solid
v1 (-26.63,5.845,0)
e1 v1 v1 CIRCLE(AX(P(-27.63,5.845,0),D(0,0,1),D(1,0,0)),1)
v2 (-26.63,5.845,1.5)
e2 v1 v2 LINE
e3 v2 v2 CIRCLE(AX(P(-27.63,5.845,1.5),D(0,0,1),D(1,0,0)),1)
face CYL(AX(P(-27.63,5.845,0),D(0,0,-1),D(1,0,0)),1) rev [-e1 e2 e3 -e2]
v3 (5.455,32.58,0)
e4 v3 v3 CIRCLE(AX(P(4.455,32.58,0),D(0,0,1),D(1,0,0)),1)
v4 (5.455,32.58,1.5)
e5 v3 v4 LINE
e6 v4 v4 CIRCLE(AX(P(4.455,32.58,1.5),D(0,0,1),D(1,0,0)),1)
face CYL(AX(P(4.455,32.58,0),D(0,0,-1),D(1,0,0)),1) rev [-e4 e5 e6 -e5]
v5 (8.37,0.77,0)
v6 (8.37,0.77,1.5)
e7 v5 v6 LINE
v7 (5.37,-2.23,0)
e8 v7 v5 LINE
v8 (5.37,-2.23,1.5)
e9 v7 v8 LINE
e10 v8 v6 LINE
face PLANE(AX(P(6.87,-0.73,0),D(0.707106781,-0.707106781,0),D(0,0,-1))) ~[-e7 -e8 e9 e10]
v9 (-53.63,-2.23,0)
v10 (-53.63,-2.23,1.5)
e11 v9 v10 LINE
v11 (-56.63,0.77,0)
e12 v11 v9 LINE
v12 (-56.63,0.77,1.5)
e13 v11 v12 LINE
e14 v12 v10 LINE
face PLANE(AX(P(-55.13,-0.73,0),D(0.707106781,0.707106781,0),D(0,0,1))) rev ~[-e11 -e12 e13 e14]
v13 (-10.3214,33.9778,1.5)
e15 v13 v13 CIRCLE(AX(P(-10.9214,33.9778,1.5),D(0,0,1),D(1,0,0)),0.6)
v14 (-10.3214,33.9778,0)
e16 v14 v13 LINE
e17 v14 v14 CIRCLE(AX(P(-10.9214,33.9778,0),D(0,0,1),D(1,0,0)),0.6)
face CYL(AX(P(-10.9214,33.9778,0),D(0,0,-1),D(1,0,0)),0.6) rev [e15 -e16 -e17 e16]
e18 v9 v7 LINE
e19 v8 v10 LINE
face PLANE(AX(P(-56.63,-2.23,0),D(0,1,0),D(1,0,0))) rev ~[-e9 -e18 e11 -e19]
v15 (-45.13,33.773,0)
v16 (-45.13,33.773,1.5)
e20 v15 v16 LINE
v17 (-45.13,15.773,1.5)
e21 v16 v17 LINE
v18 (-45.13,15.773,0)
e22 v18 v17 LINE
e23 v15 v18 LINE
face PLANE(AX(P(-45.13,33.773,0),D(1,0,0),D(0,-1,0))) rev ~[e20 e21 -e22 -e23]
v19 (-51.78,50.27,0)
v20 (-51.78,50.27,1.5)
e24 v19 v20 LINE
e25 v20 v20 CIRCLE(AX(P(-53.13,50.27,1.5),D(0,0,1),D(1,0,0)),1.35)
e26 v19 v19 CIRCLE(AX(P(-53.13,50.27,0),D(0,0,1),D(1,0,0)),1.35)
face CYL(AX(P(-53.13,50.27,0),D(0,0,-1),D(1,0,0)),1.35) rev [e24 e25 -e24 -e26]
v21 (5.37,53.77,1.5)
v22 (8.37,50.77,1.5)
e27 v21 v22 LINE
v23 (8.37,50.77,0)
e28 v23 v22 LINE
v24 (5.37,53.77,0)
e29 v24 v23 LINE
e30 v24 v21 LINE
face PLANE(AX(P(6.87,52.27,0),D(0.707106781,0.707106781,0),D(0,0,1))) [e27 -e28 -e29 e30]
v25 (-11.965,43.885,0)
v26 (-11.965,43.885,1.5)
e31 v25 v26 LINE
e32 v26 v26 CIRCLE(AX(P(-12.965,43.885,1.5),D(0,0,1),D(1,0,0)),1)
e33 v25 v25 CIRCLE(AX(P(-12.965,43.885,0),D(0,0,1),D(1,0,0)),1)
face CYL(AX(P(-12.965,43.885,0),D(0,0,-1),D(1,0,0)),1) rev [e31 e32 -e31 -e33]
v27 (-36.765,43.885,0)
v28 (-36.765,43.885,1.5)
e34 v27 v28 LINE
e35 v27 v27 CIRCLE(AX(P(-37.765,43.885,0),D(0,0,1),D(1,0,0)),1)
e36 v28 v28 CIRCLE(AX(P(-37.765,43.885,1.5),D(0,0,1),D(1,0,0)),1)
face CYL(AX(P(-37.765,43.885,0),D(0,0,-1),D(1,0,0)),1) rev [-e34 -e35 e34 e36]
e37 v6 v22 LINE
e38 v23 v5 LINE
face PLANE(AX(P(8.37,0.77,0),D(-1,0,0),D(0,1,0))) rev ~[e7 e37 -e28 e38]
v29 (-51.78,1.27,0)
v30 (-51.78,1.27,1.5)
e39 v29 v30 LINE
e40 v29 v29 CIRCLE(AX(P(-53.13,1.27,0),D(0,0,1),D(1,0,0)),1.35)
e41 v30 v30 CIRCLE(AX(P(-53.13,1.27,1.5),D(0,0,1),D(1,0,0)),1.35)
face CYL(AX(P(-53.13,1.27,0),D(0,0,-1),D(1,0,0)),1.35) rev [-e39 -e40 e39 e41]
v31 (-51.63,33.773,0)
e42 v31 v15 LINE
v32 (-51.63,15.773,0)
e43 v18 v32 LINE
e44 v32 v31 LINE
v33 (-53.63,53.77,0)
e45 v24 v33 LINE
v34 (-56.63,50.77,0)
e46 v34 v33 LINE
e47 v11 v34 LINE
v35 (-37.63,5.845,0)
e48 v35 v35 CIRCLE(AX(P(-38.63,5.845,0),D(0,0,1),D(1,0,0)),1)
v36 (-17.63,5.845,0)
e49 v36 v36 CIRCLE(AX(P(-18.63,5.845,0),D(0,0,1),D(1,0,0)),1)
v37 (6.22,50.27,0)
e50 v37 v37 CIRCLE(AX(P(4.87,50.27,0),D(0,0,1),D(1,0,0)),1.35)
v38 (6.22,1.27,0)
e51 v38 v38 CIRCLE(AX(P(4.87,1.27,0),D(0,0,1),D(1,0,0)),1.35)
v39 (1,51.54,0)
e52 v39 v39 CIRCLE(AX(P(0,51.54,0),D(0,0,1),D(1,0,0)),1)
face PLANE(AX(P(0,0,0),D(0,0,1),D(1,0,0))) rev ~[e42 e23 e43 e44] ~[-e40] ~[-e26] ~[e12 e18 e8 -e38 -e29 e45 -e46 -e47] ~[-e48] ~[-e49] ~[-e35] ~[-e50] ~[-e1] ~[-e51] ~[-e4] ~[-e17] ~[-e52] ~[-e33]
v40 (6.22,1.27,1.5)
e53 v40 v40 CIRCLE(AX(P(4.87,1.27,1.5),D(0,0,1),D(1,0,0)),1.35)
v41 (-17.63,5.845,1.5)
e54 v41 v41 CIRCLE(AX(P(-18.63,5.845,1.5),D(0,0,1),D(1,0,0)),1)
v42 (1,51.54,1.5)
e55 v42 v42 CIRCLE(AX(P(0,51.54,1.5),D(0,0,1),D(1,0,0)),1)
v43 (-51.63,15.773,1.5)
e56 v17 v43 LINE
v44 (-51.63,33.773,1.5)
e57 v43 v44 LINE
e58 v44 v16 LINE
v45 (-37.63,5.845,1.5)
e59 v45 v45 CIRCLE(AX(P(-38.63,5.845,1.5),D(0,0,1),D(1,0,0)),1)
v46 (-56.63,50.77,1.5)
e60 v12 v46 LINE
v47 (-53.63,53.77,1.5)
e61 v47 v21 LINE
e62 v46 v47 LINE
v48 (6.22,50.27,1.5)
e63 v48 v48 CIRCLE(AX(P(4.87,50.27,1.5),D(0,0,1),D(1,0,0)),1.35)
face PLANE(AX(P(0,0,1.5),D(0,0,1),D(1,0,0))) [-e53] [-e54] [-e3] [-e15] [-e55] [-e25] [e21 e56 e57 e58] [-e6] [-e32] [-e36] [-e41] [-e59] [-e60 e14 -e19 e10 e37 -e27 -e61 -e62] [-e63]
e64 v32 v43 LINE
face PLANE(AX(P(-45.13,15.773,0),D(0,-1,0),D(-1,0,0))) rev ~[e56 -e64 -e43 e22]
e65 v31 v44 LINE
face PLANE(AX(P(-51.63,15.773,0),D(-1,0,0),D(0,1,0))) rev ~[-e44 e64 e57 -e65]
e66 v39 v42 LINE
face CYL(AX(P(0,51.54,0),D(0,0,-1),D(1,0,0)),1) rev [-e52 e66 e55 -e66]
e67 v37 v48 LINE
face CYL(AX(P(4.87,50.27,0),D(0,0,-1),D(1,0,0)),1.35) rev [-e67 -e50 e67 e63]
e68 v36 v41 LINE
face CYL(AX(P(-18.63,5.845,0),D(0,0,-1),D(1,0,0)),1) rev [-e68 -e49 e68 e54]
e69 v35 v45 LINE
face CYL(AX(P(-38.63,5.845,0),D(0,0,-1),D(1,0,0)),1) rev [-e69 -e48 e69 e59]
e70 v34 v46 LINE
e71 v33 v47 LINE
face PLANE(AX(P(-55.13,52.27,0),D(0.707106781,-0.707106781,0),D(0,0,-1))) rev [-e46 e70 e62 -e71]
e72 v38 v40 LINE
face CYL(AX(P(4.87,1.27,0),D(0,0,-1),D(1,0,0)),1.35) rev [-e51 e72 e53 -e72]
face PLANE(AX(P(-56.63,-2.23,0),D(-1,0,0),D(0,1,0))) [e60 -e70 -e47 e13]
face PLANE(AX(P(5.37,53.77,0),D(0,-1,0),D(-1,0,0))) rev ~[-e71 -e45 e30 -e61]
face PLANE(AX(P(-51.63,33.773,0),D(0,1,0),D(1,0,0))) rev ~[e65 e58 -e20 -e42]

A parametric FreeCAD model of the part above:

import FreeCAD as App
import Part
import Sketcher
Q = App.Units.Quantity


def edges_at(feature, points):
    """Names of the edges that pass closest to the given points."""
    edges = feature.Shape.Edges
    near = lambda p: min(range(len(edges)), key=lambda i: edges[i].distToShape(Part.Vertex(*p))[0])
    return sorted({f"Edge{near(p) + 1}" for p in points})


def add_polygon(sketch, points):
    """Adds a closed chain of lines whose ends are joined by coincident constraints."""
    first, n = sketch.GeometryCount, len(points)
    for a, b in zip(points, points[1:] + points[:1]):
        sketch.addGeometry(Part.LineSegment(App.Vector(*a, 0), App.Vector(*b, 0)), False)
    for i in range(n):
        sketch.addConstraint(Sketcher.Constraint("Coincident", first + i, 2, first + (i + 1) % n, 1))

doc = App.newDocument("Part")
body = doc.addObject("PartDesign::Body", "Body")

sketch1 = body.newObject("Sketcher::SketchObject", "Sketch")
sketch1.AttachmentSupport = (doc.getObject("XY_Plane"), [""])
sketch1.MapMode = "FlatFace"
add_polygon(sketch1, [(-56.6, 53.8), (-56.6, -2.2), (8.4, -2.2), (8.4, 53.8)])
sketch1.addGeometry(Part.Circle(App.Vector(-53.1, 1.3, 0), App.Vector(0, 0, 1), 1.4), False)
sketch1.addGeometry(Part.Circle(App.Vector(-38.6, 5.8, 0), App.Vector(0, 0, 1), 1), False)
sketch1.addGeometry(Part.Circle(App.Vector(4.9, 1.3, 0), App.Vector(0, 0, 1), 1.4), False)
sketch1.addGeometry(Part.Circle(App.Vector(-27.6, 5.8, 0), App.Vector(0, 0, 1), 1), False)
sketch1.addGeometry(Part.Circle(App.Vector(-18.6, 5.8, 0), App.Vector(0, 0, 1), 1), False)
add_polygon(sketch1, [(-51.6, 15.8), (-51.6, 33.8), (-45.1, 33.8), (-45.1, 15.8)])
sketch1.addGeometry(Part.Circle(App.Vector(-53.1, 50.3, 0), App.Vector(0, 0, 1), 1.4), False)
sketch1.addGeometry(Part.Circle(App.Vector(-37.8, 43.9, 0), App.Vector(0, 0, 1), 1), False)
sketch1.addGeometry(Part.Circle(App.Vector(4.5, 32.6, 0), App.Vector(0, 0, 1), 1), False)
sketch1.addGeometry(Part.Circle(App.Vector(-10.9, 34, 0), App.Vector(0, 0, 1), 0.6), False)
sketch1.addGeometry(Part.Circle(App.Vector(-13, 43.9, 0), App.Vector(0, 0, 1), 1), False)
sketch1.addGeometry(Part.Circle(App.Vector(0, 51.5, 0), App.Vector(0, 0, 1), 1), False)
sketch1.addGeometry(Part.Circle(App.Vector(4.9, 50.3, 0), App.Vector(0, 0, 1), 1.4), False)
sketch1.addConstraint(Sketcher.Constraint("Vertical", 0))
sketch1.addConstraint(Sketcher.Constraint("Horizontal", 1))
sketch1.addConstraint(Sketcher.Constraint("Vertical", 2))
sketch1.addConstraint(Sketcher.Constraint("Horizontal", 3))
sketch1.addConstraint(Sketcher.Constraint("Vertical", 9))
sketch1.addConstraint(Sketcher.Constraint("Horizontal", 10))
sketch1.addConstraint(Sketcher.Constraint("Vertical", 11))
sketch1.addConstraint(Sketcher.Constraint("Horizontal", 12))
sketch1.addConstraint(Sketcher.Constraint("Equal", 4, 6))
sketch1.addConstraint(Sketcher.Constraint("Equal", 5, 7))
sketch1.addConstraint(Sketcher.Constraint("Equal", 7, 8))
sketch1.addConstraint(Sketcher.Constraint("Equal", 6, 13))
sketch1.addConstraint(Sketcher.Constraint("Equal", 8, 14))
sketch1.addConstraint(Sketcher.Constraint("Equal", 14, 15))
sketch1.addConstraint(Sketcher.Constraint("Equal", 15, 17))
sketch1.addConstraint(Sketcher.Constraint("Equal", 17, 18))
sketch1.addConstraint(Sketcher.Constraint("Equal", 13, 19))
sketch1.addConstraint(Sketcher.Constraint("PointOnObject", 18, 3, -2))
sketch1.addConstraint(Sketcher.Constraint("Horizontal", 4, 3, 6, 3))
sketch1.addConstraint(Sketcher.Constraint("Horizontal", 5, 3, 7, 3))
sketch1.addConstraint(Sketcher.Constraint("Horizontal", 7, 3, 8, 3))
sketch1.addConstraint(Sketcher.Constraint("Horizontal", 14, 3, 17, 3))
sketch1.addConstraint(Sketcher.Constraint("Horizontal", 13, 3, 19, 3))
sketch1.addConstraint(Sketcher.Constraint("Vertical", 4, 3, 13, 3))
sketch1.addConstraint(Sketcher.Constraint("Vertical", 6, 3, 19, 3))
sketch1.addConstraint(Sketcher.Constraint("Diameter", 5, Q("2 mm")))
sketch1.addConstraint(Sketcher.Constraint("DistanceX", 1, 1, 1, 2, Q("65 mm")))
sketch1.addConstraint(Sketcher.Constraint("DistanceY", 0, 2, 0, 1, Q("56 mm")))
sketch1.addConstraint(Sketcher.Constraint("DistanceY", 9, 1, 9, 2, Q("18 mm")))
sketch1.addConstraint(Sketcher.Constraint("DistanceX", 10, 1, 10, 2, Q("6.5 mm")))
sketch1.addConstraint(Sketcher.Constraint("DistanceX", 5, 3, 7, 3, Q("11 mm")))
sketch1.addConstraint(Sketcher.Constraint("DistanceX", 0, 2, 5, 3, Q("18 mm")))
sketch1.addConstraint(Sketcher.Constraint("DistanceX", 3, 2, 9, 2, Q("5 mm")))
sketch1.addConstraint(Sketcher.Constraint("DistanceX", 13, 3, 10, 2, Q("8 mm")))
sketch1.addConstraint(Sketcher.Constraint("Diameter", 4, Q("2.7 mm")))
sketch1.addConstraint(Sketcher.Constraint("Diameter", 16, Q("1.2 mm")))
sketch1.addConstraint(Sketcher.Constraint("DistanceX", 4, 3, 6, 3, Q("58 mm")))
sketch1.addConstraint(Sketcher.Constraint("DistanceX", 7, 3, 8, 3, Q("9 mm")))
sketch1.addConstraint(Sketcher.Constraint("DistanceY", 4, 3, 13, 3, Q("49 mm")))
sketch1.addConstraint(Sketcher.Constraint("DistanceY", 9, 2, 3, 2, Q("19.997 mm")))
sketch1.addConstraint(Sketcher.Constraint("DistanceX", 14, 3, 17, 3, Q("24.8 mm")))
sketch1.addConstraint(Sketcher.Constraint("DistanceY", 0, 2, 4, 3, Q("3.5 mm")))
sketch1.addConstraint(Sketcher.Constraint("DistanceX", 4, 3, -1, 1, Q("53.13 mm")))
sketch1.addConstraint(Sketcher.Constraint("DistanceY", -1, 1, 4, 3, Q("1.27 mm")))
sketch1.addConstraint(Sketcher.Constraint("DistanceY", -1, 1, 15, 3, Q("32.58 mm")))
sketch1.addConstraint(Sketcher.Constraint("DistanceY", -1, 1, 18, 3, Q("51.54 mm")))
sketch1.addConstraint(Sketcher.Constraint("DistanceY", 5, 3, 14, 3, Q("38.04 mm")))
sketch1.addConstraint(Sketcher.Constraint("DistanceX", 14, 3, 15, 3, Q("42.22 mm")))
sketch1.addConstraint(Sketcher.Constraint("DistanceY", -1, 1, 5, 3, Q("5.845 mm")))
sketch1.addConstraint(Sketcher.Constraint("DistanceX", 14, 3, -1, 1, Q("37.765 mm")))
sketch1.addConstraint(Sketcher.Constraint("DistanceX", 16, 3, -1, 1, Q("10.9214 mm")))
sketch1.addConstraint(Sketcher.Constraint("DistanceY", -1, 1, 16, 3, Q("33.9778 mm")))
pad1 = body.newObject("PartDesign::Pad", "Pad")
pad1.Profile = sketch1
pad1.Length = 1.5
doc.recompute()

chamfer = body.newObject("PartDesign::Chamfer", "Chamfer")
chamfer.Base = (pad1, edges_at(pad1, [
    (8.37, -2.23, 0.75),
    (8.37, 53.77, 0.75),
    (-56.63, 53.77, 0.75),
    (-56.63, -2.23, 0.75),
]))
chamfer.Size = 3

doc.recompute()
